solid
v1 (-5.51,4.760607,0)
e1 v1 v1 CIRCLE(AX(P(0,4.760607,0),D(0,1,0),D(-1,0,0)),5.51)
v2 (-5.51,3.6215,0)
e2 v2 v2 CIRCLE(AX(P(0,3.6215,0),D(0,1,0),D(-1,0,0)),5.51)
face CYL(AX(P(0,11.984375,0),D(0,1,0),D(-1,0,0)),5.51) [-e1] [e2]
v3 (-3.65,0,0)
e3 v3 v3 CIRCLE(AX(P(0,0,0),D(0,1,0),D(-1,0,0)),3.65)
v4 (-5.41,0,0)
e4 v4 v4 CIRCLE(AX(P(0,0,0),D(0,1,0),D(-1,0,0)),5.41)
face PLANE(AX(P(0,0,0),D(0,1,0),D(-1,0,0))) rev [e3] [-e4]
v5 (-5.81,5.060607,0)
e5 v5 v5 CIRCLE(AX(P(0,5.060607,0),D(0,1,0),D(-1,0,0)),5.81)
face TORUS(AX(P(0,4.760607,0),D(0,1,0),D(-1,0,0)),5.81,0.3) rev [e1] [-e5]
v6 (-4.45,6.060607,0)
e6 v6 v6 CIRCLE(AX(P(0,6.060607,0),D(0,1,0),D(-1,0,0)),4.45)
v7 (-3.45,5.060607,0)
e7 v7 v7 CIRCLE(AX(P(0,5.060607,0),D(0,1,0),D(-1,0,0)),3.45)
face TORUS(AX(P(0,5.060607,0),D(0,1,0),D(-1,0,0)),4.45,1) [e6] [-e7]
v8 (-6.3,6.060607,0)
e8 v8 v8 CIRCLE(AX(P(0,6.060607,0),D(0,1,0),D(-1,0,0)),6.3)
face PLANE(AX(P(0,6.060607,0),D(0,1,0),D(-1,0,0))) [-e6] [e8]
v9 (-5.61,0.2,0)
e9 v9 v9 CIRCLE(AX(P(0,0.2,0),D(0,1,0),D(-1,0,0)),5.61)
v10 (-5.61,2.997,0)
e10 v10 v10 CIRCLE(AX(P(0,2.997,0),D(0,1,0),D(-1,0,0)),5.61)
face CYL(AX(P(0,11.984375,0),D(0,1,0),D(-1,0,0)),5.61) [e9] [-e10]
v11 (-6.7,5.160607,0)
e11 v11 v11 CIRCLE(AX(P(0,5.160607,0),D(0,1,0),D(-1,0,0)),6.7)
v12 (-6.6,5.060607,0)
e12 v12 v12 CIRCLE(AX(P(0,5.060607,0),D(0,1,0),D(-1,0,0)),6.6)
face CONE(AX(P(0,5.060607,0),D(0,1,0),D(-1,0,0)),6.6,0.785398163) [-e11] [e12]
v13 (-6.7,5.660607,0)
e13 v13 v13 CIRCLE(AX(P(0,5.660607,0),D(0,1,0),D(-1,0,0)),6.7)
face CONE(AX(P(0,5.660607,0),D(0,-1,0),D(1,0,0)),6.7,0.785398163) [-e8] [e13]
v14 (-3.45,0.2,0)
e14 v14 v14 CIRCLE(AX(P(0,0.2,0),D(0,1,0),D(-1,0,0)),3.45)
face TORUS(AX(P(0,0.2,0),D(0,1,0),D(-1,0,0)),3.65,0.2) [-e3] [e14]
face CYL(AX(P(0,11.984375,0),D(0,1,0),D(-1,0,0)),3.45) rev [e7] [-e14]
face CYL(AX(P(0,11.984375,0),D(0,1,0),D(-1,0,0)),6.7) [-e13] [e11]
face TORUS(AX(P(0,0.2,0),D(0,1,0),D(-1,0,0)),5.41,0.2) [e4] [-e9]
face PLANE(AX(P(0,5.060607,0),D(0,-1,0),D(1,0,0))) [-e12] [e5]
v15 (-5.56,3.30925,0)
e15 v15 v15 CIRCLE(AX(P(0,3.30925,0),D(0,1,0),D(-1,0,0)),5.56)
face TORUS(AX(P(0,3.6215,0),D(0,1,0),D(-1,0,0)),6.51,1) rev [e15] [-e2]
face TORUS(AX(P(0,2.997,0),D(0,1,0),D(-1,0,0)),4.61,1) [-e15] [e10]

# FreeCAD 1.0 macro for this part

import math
import FreeCAD as App
import Part
import Sketcher
Q = App.Units.Quantity

doc = App.newDocument("Part")
body = doc.addObject("PartDesign::Body", "Body")

# Sketch on XY plane
sketch1 = body.newObject("Sketcher::SketchObject", "Sketch")
sketch1.AttachmentSupport = (doc.getObject("XY_Plane"), [""])
sketch1.MapMode = "FlatFace"
sketch1.addGeometry([
    Part.ArcOfCircle(Part.Circle(App.Vector(-3.65, 0.2, 0), App.Vector(0, 0, 1), 0.2), math.radians(-90), math.radians(0)),  # 0
    Part.LineSegment(App.Vector(-3.45, 0.2, 0), App.Vector(-3.45, 5.060607, 0)),  # 1
    Part.ArcOfCircle(Part.Circle(App.Vector(-4.45, 5.060607, 0), App.Vector(0, 0, 1), 1), math.radians(0), math.radians(90)),  # 2
    Part.LineSegment(App.Vector(-4.45, 6.060607, 0), App.Vector(-6.3, 6.060607, 0)),  # 3
    Part.LineSegment(App.Vector(-6.3, 6.060607, 0), App.Vector(-6.7, 5.660607, 0)),  # 4
    Part.LineSegment(App.Vector(-6.7, 5.660607, 0), App.Vector(-6.7, 5.160607, 0)),  # 5
    Part.LineSegment(App.Vector(-6.7, 5.160607, 0), App.Vector(-6.6, 5.060607, 0)),  # 6
    Part.LineSegment(App.Vector(-6.6, 5.060607, 0), App.Vector(-5.81, 5.060607, 0)),  # 7
    Part.ArcOfCircle(Part.Circle(App.Vector(-5.81, 4.760607, 0), App.Vector(0, 0, 1), 0.3), math.radians(0), math.radians(90)),  # 8
    Part.LineSegment(App.Vector(-5.51, 4.760607, 0), App.Vector(-5.51, 3.6215, 0)),  # 9
    Part.ArcOfCircle(Part.Circle(App.Vector(-6.51, 3.6215, 0), App.Vector(0, 0, 1), 1), math.radians(-18.194872), math.radians(0)),  # 10
    Part.ArcOfCircle(Part.Circle(App.Vector(-4.61, 2.997, 0), App.Vector(0, 0, 1), 1), math.radians(161.805128), math.radians(180)),  # 11
    Part.LineSegment(App.Vector(-5.61, 2.997, 0), App.Vector(-5.61, 0.2, 0)),  # 12
    Part.ArcOfCircle(Part.Circle(App.Vector(-5.41, 0.2, 0), App.Vector(0, 0, 1), 0.2), math.radians(-180), math.radians(-90)),  # 13
    Part.LineSegment(App.Vector(-5.41, 0, 0), App.Vector(-3.65, 0, 0)),  # 14
], False)
sketch1.addConstraint([
    Sketcher.Constraint("Tangent", 0, 2, 1, 1),
    Sketcher.Constraint("Tangent", 1, 2, 2, 1),
    Sketcher.Constraint("Tangent", 2, 2, 3, 1),
    Sketcher.Constraint("Coincident", 3, 2, 4, 1),
    Sketcher.Constraint("Coincident", 4, 2, 5, 1),
    Sketcher.Constraint("Coincident", 5, 2, 6, 1),
    Sketcher.Constraint("Coincident", 6, 2, 7, 1),
    Sketcher.Constraint("Tangent", 7, 2, 8, 2),
    Sketcher.Constraint("Tangent", 8, 1, 9, 1),
    Sketcher.Constraint("Tangent", 9, 2, 10, 2),
    Sketcher.Constraint("Tangent", 10, 1, 11, 1),
    Sketcher.Constraint("Tangent", 11, 2, 12, 1),
    Sketcher.Constraint("Tangent", 12, 2, 13, 1),
    Sketcher.Constraint("Tangent", 13, 2, 14, 1),
    Sketcher.Constraint("Tangent", 14, 2, 0, 1),
    Sketcher.Constraint("Vertical", 1),
    Sketcher.Constraint("Horizontal", 3),
    Sketcher.Constraint("Vertical", 5),
    Sketcher.Constraint("Horizontal", 7),
    Sketcher.Constraint("Vertical", 9),
    Sketcher.Constraint("Vertical", 12),
    Sketcher.Constraint("Horizontal", 14),
    Sketcher.Constraint("Equal", 2, 10),
    Sketcher.Constraint("Equal", 10, 11),
    Sketcher.Constraint("Equal", 0, 13),
    Sketcher.Constraint("PointOnObject", 13, 2, -1),
    Sketcher.Constraint("Perpendicular", 4, 6),
    Sketcher.Constraint("Horizontal", 1, 2, 6, 2),
    Sketcher.Constraint("Radius", 2, Q("1 mm")),
    Sketcher.Constraint("Radius", 0, Q("0.2 mm")),
    Sketcher.Constraint("Radius", 8, Q("0.3 mm")),
    Sketcher.Constraint("Angle", 4, Q("-135 deg")),
    Sketcher.Constraint("DistanceY", 5, 2, 5, 1, Q("0.5 mm")),
    Sketcher.Constraint("DistanceX", 3, 2, 3, 1, Q("1.85 mm")),
    Sketcher.Constraint("DistanceX", 7, 1, 7, 2, Q("0.79 mm")),
    Sketcher.Constraint("DistanceX", 14, 1, 14, 2, Q("1.76 mm")),
    Sketcher.Constraint("DistanceX", 3, 2, -1, 1, Q("6.3 mm")),
    Sketcher.Constraint("DistanceX", 4, 2, -1, 1, Q("6.7 mm")),
    Sketcher.Constraint("DistanceY", 12, 2, 12, 1, Q("2.797 mm")),
    Sketcher.Constraint("DistanceY", 1, 1, 1, 2, Q("4.860607 mm")),
])
revolution = body.newObject("PartDesign::Revolution", "Revolution")
revolution.Profile = sketch1
revolution.ReferenceAxis = (sketch1, ["V_Axis"])
revolution.Angle = 360

doc.recompute()
